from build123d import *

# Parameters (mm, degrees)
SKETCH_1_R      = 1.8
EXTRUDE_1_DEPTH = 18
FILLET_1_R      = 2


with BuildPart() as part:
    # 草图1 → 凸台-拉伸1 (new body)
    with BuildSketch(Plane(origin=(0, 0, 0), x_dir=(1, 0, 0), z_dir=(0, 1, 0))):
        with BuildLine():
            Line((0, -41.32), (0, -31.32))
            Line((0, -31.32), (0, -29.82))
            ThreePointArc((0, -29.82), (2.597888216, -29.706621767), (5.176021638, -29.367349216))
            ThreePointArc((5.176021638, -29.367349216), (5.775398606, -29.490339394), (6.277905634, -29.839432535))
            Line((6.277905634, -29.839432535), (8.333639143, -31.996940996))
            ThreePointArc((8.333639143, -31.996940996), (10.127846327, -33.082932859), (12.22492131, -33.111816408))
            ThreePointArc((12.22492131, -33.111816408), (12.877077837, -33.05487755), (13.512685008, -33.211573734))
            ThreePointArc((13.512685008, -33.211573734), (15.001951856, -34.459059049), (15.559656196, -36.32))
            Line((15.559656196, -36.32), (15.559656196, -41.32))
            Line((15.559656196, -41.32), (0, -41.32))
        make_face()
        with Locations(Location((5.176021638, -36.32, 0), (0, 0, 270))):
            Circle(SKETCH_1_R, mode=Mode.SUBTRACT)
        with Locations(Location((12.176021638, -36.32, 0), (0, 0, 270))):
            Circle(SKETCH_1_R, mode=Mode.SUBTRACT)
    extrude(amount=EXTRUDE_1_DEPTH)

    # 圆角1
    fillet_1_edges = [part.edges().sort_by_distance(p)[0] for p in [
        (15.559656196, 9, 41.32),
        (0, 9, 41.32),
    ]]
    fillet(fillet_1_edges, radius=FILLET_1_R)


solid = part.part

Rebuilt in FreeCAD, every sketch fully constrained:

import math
import FreeCAD as App
import Part
import Sketcher

V = App.Vector
Q = App.Units.Quantity


def edges_at(feature, points):
    """Names of the edges that pass closest to the given points."""
    edges = feature.Shape.Edges
    near = lambda p: min(range(len(edges)), key=lambda i: edges[i].distToShape(Part.Vertex(*p))[0])
    return sorted({f"Edge{near(p) + 1}" for p in points})

doc = App.newDocument("Part")
body = doc.addObject("PartDesign::Body", "Body")

# Sketch on XZ plane
sketch1 = body.newObject("Sketcher::SketchObject", "Sketch")
sketch1.AttachmentSupport = (doc.getObject("XZ_Plane"), [""])
sketch1.MapMode = "FlatFace"
sketch1.addGeometry([
    Part.LineSegment(V(0, 29.8, 0), V(0, 41.3, 0)),  # 0
    Part.LineSegment(V(0, 41.3, 0), V(15.6, 41.3, 0)),  # 1
    Part.LineSegment(V(15.6, 41.3, 0), V(15.6, 36.3, 0)),  # 2
    Part.ArcOfCircle(Part.Circle(V(12.2, 36.3, 0), V(0, 0, 1), 3.4), math.radians(-67), math.radians(0)),  # 3
    Part.ArcOfCircle(Part.Circle(V(12.7, 35, 0), V(0, 0, 1), 2), math.radians(-104), math.radians(-67)),  # 4
    Part.ArcOfCircle(Part.Circle(V(11.2, 29.2, 0), V(0, 0, 1), 4), math.radians(76), math.radians(136)),  # 5
    Part.LineSegment(V(8.3, 32, 0), V(6.3, 29.8, 0)),  # 6
    Part.ArcOfCircle(Part.Circle(V(5.2, 30.9, 0), V(0, 0, 1), 1.5), math.radians(-90), math.radians(-44)),  # 7
    Part.ArcOfCircle(Part.Circle(V(0, 0, 0), V(0, 0, 1), 29.8), math.radians(80), math.radians(90)),  # 8
    Part.Circle(V(12.2, 36.3, 0), V(0, 0, 1), 1.8),  # 9
    Part.Circle(V(5.2, 36.3, 0), V(0, 0, 1), 1.8),  # 10
], False)
sketch1.addConstraint([
    Sketcher.Constraint("Coincident", 0, 2, 1, 1),
    Sketcher.Constraint("Coincident", 1, 2, 2, 1),
    Sketcher.Constraint("Tangent", 2, 2, 3, 2),
    Sketcher.Constraint("Tangent", 3, 1, 4, 2),
    Sketcher.Constraint("Tangent", 4, 1, 5, 1),
    Sketcher.Constraint("Tangent", 5, 2, 6, 1),
    Sketcher.Constraint("Tangent", 6, 2, 7, 2),
    Sketcher.Constraint("Coincident", 7, 1, 8, 1),
    Sketcher.Constraint("Coincident", 8, 2, 0, 1),
    Sketcher.Constraint("Vertical", 0),
    Sketcher.Constraint("Horizontal", 1),
    Sketcher.Constraint("Vertical", 2),
    Sketcher.Constraint("Coincident", 8, 3, -1, 1),
    Sketcher.Constraint("Coincident", 9, 3, 3, 3),
    Sketcher.Constraint("Equal", 9, 10),
    Sketcher.Constraint("PointOnObject", 0, 2, -2),
    Sketcher.Constraint("Horizontal", 9, 3, 10, 3),
    Sketcher.Constraint("Vertical", 7, 3, 10, 3),
    Sketcher.Constraint("Vertical", 10, 3, 7, 1),
    Sketcher.Constraint("Radius", 4, Q("2 mm")),
    Sketcher.Constraint("Radius", 5, Q("4 mm")),
    Sketcher.Constraint("Diameter", 9, Q("3.6 mm")),
    Sketcher.Constraint("DistanceY", 2, 2, 2, 1, Q("5 mm")),
    Sketcher.Constraint("Radius", 8, Q("29.82 mm")),
    Sketcher.Constraint("DistanceY", 0, 1, 0, 2, Q("11.5 mm")),
    Sketcher.Constraint("DistanceX", 7, 3, 3, 3, Q("7 mm")),
    Sketcher.Constraint("Radius", 7, Q("1.521989 mm")),
    Sketcher.Constraint("Radius", 3, Q("3.383635 mm")),
    Sketcher.Constraint("DistanceX", 3, 3, 4, 1, Q("0.0489 mm")),
    Sketcher.Constraint("DistanceY", 5, 3, 5, 2, Q("2.759299 mm")),
    Sketcher.Constraint("Distance", 6, Q("2.980081 mm")),
])
pad1 = body.newObject("PartDesign::Pad", "Pad")
pad1.Profile = sketch1
pad1.Length = 18
pad1.Reversed = True
doc.recompute()

fillet = body.newObject("PartDesign::Fillet", "Fillet")
fillet.Base = (pad1, edges_at(pad1, [(15.56, 9, 41.32), (0, 9, 41.32)]))
fillet.Radius = 2

doc.recompute()
